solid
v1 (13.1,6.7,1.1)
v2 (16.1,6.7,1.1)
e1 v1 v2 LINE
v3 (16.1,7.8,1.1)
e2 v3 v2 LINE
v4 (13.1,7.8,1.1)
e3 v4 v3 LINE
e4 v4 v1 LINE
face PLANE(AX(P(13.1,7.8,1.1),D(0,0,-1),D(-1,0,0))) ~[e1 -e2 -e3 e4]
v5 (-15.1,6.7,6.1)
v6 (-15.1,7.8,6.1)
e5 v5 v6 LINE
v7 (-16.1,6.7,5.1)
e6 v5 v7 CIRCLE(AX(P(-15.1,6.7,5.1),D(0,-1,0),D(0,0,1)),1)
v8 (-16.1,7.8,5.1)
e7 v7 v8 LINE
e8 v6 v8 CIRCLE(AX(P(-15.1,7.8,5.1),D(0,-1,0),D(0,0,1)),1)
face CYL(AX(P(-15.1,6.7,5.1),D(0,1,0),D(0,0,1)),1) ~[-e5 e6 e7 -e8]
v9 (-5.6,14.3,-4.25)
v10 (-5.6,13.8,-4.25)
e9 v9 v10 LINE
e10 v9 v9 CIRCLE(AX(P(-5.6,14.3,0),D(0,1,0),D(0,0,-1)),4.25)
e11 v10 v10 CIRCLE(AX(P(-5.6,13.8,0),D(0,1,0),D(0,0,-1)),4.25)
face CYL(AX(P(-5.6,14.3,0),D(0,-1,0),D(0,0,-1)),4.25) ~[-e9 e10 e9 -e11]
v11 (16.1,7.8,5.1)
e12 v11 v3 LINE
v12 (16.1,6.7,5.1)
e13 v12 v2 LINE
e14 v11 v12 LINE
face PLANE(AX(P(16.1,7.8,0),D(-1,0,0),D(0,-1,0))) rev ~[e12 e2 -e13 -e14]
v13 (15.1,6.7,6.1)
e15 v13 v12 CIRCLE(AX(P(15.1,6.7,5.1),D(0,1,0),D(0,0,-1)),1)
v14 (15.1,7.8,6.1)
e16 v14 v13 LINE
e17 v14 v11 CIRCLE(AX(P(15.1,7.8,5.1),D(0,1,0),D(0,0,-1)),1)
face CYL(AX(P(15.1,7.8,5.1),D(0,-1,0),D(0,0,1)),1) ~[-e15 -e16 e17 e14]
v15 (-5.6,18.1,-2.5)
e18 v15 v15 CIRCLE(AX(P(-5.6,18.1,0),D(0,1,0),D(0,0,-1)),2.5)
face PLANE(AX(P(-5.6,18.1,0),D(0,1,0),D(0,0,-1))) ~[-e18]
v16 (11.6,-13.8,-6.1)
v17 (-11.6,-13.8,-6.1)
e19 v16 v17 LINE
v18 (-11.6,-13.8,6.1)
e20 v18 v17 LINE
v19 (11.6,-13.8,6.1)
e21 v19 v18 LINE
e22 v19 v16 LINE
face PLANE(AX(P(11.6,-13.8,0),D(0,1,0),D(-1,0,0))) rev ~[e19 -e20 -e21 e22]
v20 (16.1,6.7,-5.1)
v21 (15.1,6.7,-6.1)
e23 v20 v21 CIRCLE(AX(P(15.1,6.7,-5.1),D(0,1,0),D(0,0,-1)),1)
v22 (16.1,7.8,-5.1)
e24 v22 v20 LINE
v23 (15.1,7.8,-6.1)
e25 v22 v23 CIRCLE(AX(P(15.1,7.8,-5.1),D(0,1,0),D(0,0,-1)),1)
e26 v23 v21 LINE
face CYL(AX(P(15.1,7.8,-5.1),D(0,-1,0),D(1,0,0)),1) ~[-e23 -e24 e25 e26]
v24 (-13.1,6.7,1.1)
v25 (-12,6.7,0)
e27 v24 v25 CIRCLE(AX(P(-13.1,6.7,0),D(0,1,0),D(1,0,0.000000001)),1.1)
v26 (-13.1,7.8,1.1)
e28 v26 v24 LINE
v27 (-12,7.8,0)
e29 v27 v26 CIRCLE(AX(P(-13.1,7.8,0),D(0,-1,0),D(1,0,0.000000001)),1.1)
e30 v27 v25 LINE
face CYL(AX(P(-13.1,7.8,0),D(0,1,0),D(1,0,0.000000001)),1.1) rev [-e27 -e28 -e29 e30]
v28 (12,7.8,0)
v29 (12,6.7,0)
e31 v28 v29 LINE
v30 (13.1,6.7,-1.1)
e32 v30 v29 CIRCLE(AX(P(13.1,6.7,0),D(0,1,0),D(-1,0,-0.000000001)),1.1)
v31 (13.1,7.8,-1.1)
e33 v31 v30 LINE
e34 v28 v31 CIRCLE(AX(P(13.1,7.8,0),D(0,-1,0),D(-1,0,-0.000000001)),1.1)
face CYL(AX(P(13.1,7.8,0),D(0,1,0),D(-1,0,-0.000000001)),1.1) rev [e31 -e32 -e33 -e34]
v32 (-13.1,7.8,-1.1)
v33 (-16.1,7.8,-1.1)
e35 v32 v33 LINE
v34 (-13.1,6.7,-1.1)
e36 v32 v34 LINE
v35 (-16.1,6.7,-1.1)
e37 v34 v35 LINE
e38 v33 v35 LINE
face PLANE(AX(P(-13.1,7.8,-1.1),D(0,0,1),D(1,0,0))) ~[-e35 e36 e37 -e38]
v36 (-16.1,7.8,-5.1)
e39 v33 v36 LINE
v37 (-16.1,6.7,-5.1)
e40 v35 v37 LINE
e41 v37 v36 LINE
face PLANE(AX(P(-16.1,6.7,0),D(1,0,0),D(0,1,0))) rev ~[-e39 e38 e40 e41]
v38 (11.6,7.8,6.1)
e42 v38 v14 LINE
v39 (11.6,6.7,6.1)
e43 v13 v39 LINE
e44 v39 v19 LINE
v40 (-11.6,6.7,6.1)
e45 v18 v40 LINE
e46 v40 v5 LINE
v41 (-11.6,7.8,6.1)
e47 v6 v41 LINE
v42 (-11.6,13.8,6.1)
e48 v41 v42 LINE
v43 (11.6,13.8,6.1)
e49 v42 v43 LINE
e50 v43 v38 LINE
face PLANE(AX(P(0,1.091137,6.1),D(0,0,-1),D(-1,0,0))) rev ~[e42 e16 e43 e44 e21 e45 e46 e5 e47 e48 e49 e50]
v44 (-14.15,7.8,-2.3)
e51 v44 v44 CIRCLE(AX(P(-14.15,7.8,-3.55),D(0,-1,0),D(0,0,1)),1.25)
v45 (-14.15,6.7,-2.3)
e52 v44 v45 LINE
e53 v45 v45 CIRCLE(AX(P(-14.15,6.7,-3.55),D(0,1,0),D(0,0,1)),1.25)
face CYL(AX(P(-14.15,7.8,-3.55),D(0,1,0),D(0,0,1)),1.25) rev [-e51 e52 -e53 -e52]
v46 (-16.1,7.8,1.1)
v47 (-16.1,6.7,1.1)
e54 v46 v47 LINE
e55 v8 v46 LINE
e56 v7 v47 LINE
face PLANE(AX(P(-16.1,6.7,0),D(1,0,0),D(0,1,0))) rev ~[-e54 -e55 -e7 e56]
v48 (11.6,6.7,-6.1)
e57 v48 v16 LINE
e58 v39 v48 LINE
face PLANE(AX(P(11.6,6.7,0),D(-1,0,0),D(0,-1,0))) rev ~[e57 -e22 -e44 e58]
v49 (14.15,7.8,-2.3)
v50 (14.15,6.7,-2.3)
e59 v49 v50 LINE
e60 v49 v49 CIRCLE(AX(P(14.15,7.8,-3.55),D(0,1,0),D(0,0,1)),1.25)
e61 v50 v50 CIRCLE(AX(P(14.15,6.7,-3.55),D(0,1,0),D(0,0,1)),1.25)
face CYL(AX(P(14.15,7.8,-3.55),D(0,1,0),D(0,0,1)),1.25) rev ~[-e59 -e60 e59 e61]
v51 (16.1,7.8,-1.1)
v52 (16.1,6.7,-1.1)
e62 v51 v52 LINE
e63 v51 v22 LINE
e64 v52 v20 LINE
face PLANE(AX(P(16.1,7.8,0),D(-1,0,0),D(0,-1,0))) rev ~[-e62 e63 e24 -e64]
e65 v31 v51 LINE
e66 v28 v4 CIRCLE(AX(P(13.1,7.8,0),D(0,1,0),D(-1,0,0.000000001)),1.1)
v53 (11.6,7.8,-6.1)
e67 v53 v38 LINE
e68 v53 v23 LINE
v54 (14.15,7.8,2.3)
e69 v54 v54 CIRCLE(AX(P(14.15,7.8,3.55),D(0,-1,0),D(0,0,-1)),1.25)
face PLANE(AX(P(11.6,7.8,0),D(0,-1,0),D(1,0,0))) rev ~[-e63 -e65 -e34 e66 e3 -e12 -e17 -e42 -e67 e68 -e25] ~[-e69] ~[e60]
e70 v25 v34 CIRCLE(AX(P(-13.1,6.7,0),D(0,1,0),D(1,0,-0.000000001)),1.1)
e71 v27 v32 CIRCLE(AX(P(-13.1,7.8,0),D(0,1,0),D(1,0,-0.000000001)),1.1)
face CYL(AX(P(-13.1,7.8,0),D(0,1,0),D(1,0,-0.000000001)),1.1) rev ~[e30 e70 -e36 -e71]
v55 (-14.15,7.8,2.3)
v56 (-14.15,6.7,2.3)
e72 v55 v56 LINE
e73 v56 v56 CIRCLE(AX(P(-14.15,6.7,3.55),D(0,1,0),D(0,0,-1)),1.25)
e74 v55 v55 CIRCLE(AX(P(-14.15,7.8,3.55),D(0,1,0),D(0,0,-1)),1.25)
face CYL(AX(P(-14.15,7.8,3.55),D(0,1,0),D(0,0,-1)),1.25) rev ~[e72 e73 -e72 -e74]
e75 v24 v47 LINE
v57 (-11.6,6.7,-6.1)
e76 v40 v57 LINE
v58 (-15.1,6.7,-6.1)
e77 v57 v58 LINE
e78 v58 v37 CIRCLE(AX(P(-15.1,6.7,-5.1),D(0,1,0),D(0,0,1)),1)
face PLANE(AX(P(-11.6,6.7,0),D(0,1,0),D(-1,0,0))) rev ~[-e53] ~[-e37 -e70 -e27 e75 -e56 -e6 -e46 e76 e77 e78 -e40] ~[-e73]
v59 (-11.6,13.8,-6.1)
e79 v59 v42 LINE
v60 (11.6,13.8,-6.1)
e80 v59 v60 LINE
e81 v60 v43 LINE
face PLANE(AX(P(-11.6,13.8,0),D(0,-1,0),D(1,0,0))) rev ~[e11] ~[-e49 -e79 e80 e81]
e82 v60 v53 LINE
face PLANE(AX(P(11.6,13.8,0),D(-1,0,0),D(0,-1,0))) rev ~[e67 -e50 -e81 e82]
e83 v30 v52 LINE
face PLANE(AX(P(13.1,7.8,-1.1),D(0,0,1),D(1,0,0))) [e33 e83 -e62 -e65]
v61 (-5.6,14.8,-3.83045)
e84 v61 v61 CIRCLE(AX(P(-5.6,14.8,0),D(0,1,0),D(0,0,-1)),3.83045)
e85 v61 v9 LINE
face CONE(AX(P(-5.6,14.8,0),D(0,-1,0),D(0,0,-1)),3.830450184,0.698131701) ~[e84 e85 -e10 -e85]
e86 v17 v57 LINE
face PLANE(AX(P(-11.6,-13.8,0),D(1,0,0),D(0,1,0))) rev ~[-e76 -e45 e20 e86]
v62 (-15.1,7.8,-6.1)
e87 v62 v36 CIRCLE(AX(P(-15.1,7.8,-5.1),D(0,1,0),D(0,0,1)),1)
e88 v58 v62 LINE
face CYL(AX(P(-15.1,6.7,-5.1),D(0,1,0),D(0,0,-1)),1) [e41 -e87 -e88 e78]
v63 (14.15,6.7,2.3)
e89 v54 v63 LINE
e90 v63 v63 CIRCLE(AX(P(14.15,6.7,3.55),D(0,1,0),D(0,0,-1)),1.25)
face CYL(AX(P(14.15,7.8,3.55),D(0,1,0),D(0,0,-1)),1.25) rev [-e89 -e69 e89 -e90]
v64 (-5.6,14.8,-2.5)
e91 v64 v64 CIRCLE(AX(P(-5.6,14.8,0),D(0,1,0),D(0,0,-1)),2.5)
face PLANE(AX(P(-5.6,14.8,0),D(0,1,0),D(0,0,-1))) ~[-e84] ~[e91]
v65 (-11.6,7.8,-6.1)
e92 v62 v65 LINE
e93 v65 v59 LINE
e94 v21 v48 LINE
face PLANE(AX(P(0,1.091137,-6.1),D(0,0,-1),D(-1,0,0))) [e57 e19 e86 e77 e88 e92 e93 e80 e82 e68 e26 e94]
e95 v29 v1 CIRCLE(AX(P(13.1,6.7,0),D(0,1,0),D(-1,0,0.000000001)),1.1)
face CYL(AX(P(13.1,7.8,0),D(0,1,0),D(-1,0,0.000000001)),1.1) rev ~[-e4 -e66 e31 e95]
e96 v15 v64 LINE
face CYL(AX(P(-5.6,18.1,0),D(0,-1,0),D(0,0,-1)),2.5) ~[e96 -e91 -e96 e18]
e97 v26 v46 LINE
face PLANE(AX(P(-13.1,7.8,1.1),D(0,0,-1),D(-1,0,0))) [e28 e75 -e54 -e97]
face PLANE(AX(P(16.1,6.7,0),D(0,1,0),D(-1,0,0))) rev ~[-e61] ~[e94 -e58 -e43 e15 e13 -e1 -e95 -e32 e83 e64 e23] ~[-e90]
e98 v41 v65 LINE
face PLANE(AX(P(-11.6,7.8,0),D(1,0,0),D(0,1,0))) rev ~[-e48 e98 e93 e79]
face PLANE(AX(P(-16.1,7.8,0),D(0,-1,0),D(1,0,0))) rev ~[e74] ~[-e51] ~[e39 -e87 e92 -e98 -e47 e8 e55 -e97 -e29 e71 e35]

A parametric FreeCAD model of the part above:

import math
import FreeCAD as App
import Part
import Sketcher

V = App.Vector
Q = App.Units.Quantity


def edges_at(feature, points):
    """Names of the edges that pass closest to the given points."""
    edges = feature.Shape.Edges
    near = lambda p: min(range(len(edges)), key=lambda i: edges[i].distToShape(Part.Vertex(*p))[0])
    return sorted({f"Edge{near(p) + 1}" for p in points})


def add_polygon(sketch, points):
    """Adds a closed chain of lines whose ends are joined by coincident constraints."""
    first, n = sketch.GeometryCount, len(points)
    for a, b in zip(points, points[1:] + points[:1]):
        sketch.addGeometry(Part.LineSegment(App.Vector(*a, 0), App.Vector(*b, 0)), False)
    for i in range(n):
        sketch.addConstraint(Sketcher.Constraint("Coincident", first + i, 2, first + (i + 1) % n, 1))

doc = App.newDocument("Part")
body = doc.addObject("PartDesign::Body", "Body")

# Sketch on XY plane
sketch1 = body.newObject("Sketcher::SketchObject", "Sketch")
sketch1.AttachmentSupport = (doc.getObject("XY_Plane"), [""])
sketch1.MapMode = "FlatFace"
add_polygon(sketch1, [(16.1, 7.8), (11.6, 7.8), (11.6, 13.8), (-11.6, 13.8), (-11.6, 7.8), (-16.1, 7.8), (-16.1, 6.7), (-11.6, 6.7), (-11.6, -13.8), (11.6, -13.8), (11.6, 6.7), (16.1, 6.7)])  # lines 0-11
sketch1.addConstraint(Sketcher.Constraint("Horizontal", 0))
sketch1.addConstraint(Sketcher.Constraint("Vertical", 1))
sketch1.addConstraint(Sketcher.Constraint("Horizontal", 2))
sketch1.addConstraint(Sketcher.Constraint("Vertical", 3))
sketch1.addConstraint(Sketcher.Constraint("Horizontal", 4))
sketch1.addConstraint(Sketcher.Constraint("Vertical", 5))
sketch1.addConstraint(Sketcher.Constraint("Horizontal", 6))
sketch1.addConstraint(Sketcher.Constraint("Vertical", 7))
sketch1.addConstraint(Sketcher.Constraint("Horizontal", 8))
sketch1.addConstraint(Sketcher.Constraint("Vertical", 9))
sketch1.addConstraint(Sketcher.Constraint("Horizontal", 10))
sketch1.addConstraint(Sketcher.Constraint("Vertical", 11))
sketch1.addConstraint(Sketcher.Constraint("Symmetric", 1, 2, 7, 2, -1, 1))
sketch1.addConstraint(Sketcher.Constraint("Symmetric", 0, 2, 3, 2, -2))
sketch1.addConstraint(Sketcher.Constraint("Symmetric", 6, 2, 9, 2, -2))
sketch1.addConstraint(Sketcher.Constraint("Equal", 0, 4))
sketch1.addConstraint(Sketcher.Constraint("DistanceY", 1, 1, 1, 2, 6.0))
sketch1.addConstraint(Sketcher.Constraint("DistanceX", 0, 2, 0, 1, 4.5))
sketch1.addConstraint(Sketcher.Constraint("DistanceX", 2, 2, 2, 1, 23.2))
sketch1.addConstraint(Sketcher.Constraint("DistanceY", 5, 2, 5, 1, 1.1))
sketch1.addConstraint(Sketcher.Constraint("DistanceY", 7, 2, 7, 1, 20.5))
pad1 = body.newObject("PartDesign::Pad", "Pad")
pad1.Profile = sketch1
pad1.Length = 12.2
pad1.Midplane = True

# Sketch on XY plane
sketch2 = body.newObject("Sketcher::SketchObject", "Sketch001")
sketch2.AttachmentSupport = (doc.getObject("XY_Plane"), [""])
sketch2.MapMode = "FlatFace"
add_polygon(sketch2, [(-5.6, 18.1), (-8.1, 18.1), (-8.1, 14.8), (-9.4, 14.8), (-9.8, 14.3), (-9.8, 13.8), (-5.6, 13.8)])  # lines 0-6
sketch2.addGeometry(Part.LineSegment(V(-5.6, 13.8, 0), V(-5.6, 18.1, 0)), True)  # axis
sketch2.addConstraint(Sketcher.Constraint("Horizontal", 0))
sketch2.addConstraint(Sketcher.Constraint("Vertical", 1))
sketch2.addConstraint(Sketcher.Constraint("Horizontal", 2))
sketch2.addConstraint(Sketcher.Constraint("Vertical", 4))
sketch2.addConstraint(Sketcher.Constraint("Horizontal", 5))
sketch2.addConstraint(Sketcher.Constraint("Vertical", 6))
sketch2.addConstraint(Sketcher.Constraint("Vertical", 7))
sketch2.addConstraint(Sketcher.Constraint("Coincident", 7, 1, 5, 2))
sketch2.addConstraint(Sketcher.Constraint("Horizontal", 0, 2, 7, 2))
sketch2.addConstraint(Sketcher.Constraint("Angle", 3, Q("-130 deg")))
sketch2.addConstraint(Sketcher.Constraint("DistanceX", 0, 2, 0, 1, 2.5))
sketch2.addConstraint(Sketcher.Constraint("DistanceY", 1, 2, 1, 1, 3.3))
sketch2.addConstraint(Sketcher.Constraint("DistanceY", 4, 2, 4, 1, 0.5))
sketch2.addConstraint(Sketcher.Constraint("DistanceY", 6, 1, 6, 2, 4.3))
sketch2.addConstraint(Sketcher.Constraint("DistanceX", 5, 1, 5, 2, 4.25))
sketch2.addConstraint(Sketcher.Constraint("DistanceX", 0, 2, -1, 1, 8.1))
sketch2.addConstraint(Sketcher.Constraint("DistanceY", -1, 1, 0, 2, 18.1))
revolution = body.newObject("PartDesign::Revolution", "Revolution")
revolution.Profile = sketch2
revolution.ReferenceAxis = (sketch2, ["Axis0"])
revolution.Angle = 360

# Sketch on XZ plane
sketch3 = body.newObject("Sketcher::SketchObject", "Sketch002")
sketch3.AttachmentSupport = (doc.getObject("XZ_Plane"), [""])
sketch3.MapMode = "FlatFace"
sketch3.AttachmentOffset = App.Placement(V(0, 0, -7.8), App.Rotation())
sketch3.addGeometry(Part.Circle(V(14.2, -3.5, 0), V(0, 0, 1), 1.2), False)
sketch3.addGeometry(Part.LineSegment(V(12, 0, 0), V(16.1, 0, 0)), False)
sketch3.addGeometry(Part.LineSegment(V(16.1, 0, 0), V(16.1, -1.1, 0)), False)
sketch3.addGeometry(Part.LineSegment(V(16.1, -1.1, 0), V(13.1, -1.1, 0)), False)
sketch3.addGeometry(Part.ArcOfCircle(Part.Circle(V(13.1, 0, 0), V(0, 0, 1), 1.1), math.radians(-180), math.radians(-90)), False)
sketch3.addConstraint(Sketcher.Constraint("Coincident", 1, 2, 2, 1))
sketch3.addConstraint(Sketcher.Constraint("Coincident", 2, 2, 3, 1))
sketch3.addConstraint(Sketcher.Constraint("Tangent", 3, 2, 4, 2))
sketch3.addConstraint(Sketcher.Constraint("Coincident", 4, 1, 1, 1))
sketch3.addConstraint(Sketcher.Constraint("Horizontal", 1))
sketch3.addConstraint(Sketcher.Constraint("Vertical", 2))
sketch3.addConstraint(Sketcher.Constraint("Horizontal", 3))
sketch3.addConstraint(Sketcher.Constraint("PointOnObject", 4, 3, -1))
sketch3.addConstraint(Sketcher.Constraint("PointOnObject", 1, 2, -1))
sketch3.addConstraint(Sketcher.Constraint("Diameter", 0, 2.5))
sketch3.addConstraint(Sketcher.Constraint("Radius", 4, 1.1))
sketch3.addConstraint(Sketcher.Constraint("DistanceX", 3, 2, 3, 1, 3.0))
sketch3.addConstraint(Sketcher.Constraint("DistanceX", -1, 1, 4, 1, 12.0))
sketch3.addConstraint(Sketcher.Constraint("DistanceX", -1, 1, 0, 3, 14.15))
sketch3.addConstraint(Sketcher.Constraint("DistanceY", 0, 3, -1, 1, 3.55))
pocket1 = body.newObject("PartDesign::Pocket", "Pocket")
pocket1.Profile = sketch3
pocket1.Type = "ThroughAll"
pocket1.Reversed = True
doc.recompute()

mirrored = body.newObject("PartDesign::Mirrored", "Mirrored")
mirrored.Originals = [pocket1]
mirrored.MirrorPlane = (doc.getObject("YZ_Plane"), [""])
body.Tip = mirrored
doc.recompute()

mirrored2 = body.newObject("PartDesign::Mirrored", "Mirrored001")
mirrored2.Originals = [pocket1]
mirrored2.MirrorPlane = (doc.getObject("XY_Plane"), [""])
body.Tip = mirrored2

# Sketch on XZ plane
sketch4 = body.newObject("Sketcher::SketchObject", "Sketch003")
sketch4.AttachmentSupport = (doc.getObject("XZ_Plane"), [""])
sketch4.MapMode = "FlatFace"
sketch4.AttachmentOffset = App.Placement(V(0, 0, -7.8), App.Rotation())
sketch4.addGeometry(Part.Circle(V(-14.2, 3.5, 0), V(0, 0, 1), 1.2), False)
sketch4.addGeometry(Part.LineSegment(V(-12, 0, 0), V(-16.1, 0, 0)), False)
sketch4.addGeometry(Part.LineSegment(V(-16.1, 0, 0), V(-16.1, 1.1, 0)), False)
sketch4.addGeometry(Part.LineSegment(V(-16.1, 1.1, 0), V(-13.1, 1.1, 0)), False)
sketch4.addGeometry(Part.ArcOfCircle(Part.Circle(V(-13.1, 0, 0), V(0, 0, 1), 1.1), math.radians(0), math.radians(90)), False)
sketch4.addConstraint(Sketcher.Constraint("Coincident", 1, 2, 2, 1))
sketch4.addConstraint(Sketcher.Constraint("Coincident", 2, 2, 3, 1))
sketch4.addConstraint(Sketcher.Constraint("Tangent", 3, 2, 4, 2))
sketch4.addConstraint(Sketcher.Constraint("Coincident", 4, 1, 1, 1))
sketch4.addConstraint(Sketcher.Constraint("Horizontal", 1))
sketch4.addConstraint(Sketcher.Constraint("Vertical", 2))
sketch4.addConstraint(Sketcher.Constraint("Horizontal", 3))
sketch4.addConstraint(Sketcher.Constraint("PointOnObject", 4, 3, -1))
sketch4.addConstraint(Sketcher.Constraint("PointOnObject", 1, 2, -1))
sketch4.addConstraint(Sketcher.Constraint("Diameter", 0, 2.5))
sketch4.addConstraint(Sketcher.Constraint("Radius", 4, 1.1))
sketch4.addConstraint(Sketcher.Constraint("DistanceX", 3, 1, 3, 2, 3.0))
sketch4.addConstraint(Sketcher.Constraint("DistanceX", 4, 1, -1, 1, 12.0))
sketch4.addConstraint(Sketcher.Constraint("DistanceX", 0, 3, -1, 1, 14.15))
sketch4.addConstraint(Sketcher.Constraint("DistanceY", -1, 1, 0, 3, 3.55))
pocket2 = body.newObject("PartDesign::Pocket", "Pocket001")
pocket2.Profile = sketch4
pocket2.Type = "ThroughAll"
pocket2.Reversed = True
doc.recompute()

fillet = body.newObject("PartDesign::Fillet", "Fillet")
fillet.Base = (pocket2, edges_at(pocket2, [
    (-16.1, 7.25, 6.1),
    (16.1, 7.25, -6.1),
    (-16.1, 7.25, -6.1),
    (16.1, 7.25, 6.1),
]))
fillet.Radius = 1

doc.recompute()
